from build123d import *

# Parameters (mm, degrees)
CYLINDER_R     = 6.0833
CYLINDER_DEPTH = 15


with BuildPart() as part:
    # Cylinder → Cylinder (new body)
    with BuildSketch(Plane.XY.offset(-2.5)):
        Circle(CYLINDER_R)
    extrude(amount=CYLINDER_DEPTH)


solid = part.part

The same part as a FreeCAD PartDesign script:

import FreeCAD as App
import Part
import Sketcher

V = App.Vector

doc = App.newDocument("Part")
body = doc.addObject("PartDesign::Body", "Body")

# Sketch on XY plane
sketch1 = doc.addObject("Sketcher::SketchObject", "Sketch")
body.addObject(sketch1)
sketch1.AttachmentSupport = (doc.XY_Plane, [""])
sketch1.MapMode = "FlatFace"
sketch1.AttachmentOffset = App.Placement(V(0, 0, -2.5), App.Rotation())
sketch1.addGeometry(Part.Circle(V(0, 0, 0), V(0, 0, 1), 6), False)
sketch1.addConstraint([
    Sketcher.Constraint("Coincident", 0, 3, -1, 1),
    Sketcher.Constraint("Diameter", 0, 12.1666),
])
pad1 = doc.addObject("PartDesign::Pad", "Pad")
body.addObject(pad1)
pad1.Profile = sketch1
pad1.Length = 15

doc.recompute()
